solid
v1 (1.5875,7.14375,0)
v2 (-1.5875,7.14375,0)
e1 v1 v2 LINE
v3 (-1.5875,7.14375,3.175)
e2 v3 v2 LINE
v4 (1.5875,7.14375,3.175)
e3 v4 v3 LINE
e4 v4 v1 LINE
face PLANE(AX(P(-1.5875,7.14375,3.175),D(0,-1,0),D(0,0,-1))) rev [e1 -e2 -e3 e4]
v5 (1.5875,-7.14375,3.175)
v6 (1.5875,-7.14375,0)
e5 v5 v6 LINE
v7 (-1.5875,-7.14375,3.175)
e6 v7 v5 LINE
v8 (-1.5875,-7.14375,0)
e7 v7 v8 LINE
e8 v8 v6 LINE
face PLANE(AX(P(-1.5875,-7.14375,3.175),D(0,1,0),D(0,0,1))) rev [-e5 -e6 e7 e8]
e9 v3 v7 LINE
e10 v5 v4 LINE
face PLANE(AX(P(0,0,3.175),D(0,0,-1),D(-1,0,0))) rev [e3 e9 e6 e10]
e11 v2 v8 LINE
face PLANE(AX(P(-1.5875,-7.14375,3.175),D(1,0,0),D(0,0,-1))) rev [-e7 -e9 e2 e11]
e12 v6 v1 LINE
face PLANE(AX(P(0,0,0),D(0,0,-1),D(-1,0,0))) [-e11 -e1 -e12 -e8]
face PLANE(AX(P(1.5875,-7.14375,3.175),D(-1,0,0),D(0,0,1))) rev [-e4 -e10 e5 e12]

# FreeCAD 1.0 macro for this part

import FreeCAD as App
import Part
import Sketcher
from FreeCAD import Vector
Q = App.Units.Quantity

doc = App.newDocument("Part")
params = doc.addObject("Spreadsheet::Sheet", "Params")
for row, (alias, value) in enumerate([
    ("sketch1_width", "0.125 in"),
    ("sketch1_height", "0.5625 in"),
    ("pad1_length", "0.125 in"),
], start=1):
    params.set(f"A{row}", alias)
    params.set(f"B{row}", "=" + value)
    params.setAlias(f"B{row}", alias)

body = doc.addObject("PartDesign::Body", "Body")

# Sketch on XY plane
sketch1 = body.newObject("Sketcher::SketchObject", "Sketch")
sketch1.AttachmentSupport = (doc.getObject("XY_Plane"), [""])
sketch1.MapMode = "FlatFace"
sketch1.addGeometry([
    Part.LineSegment(Vector(-1.5875, 7.14375, 0), Vector(-1.5875, -7.14375, 0)),
    Part.LineSegment(Vector(-1.5875, -7.14375, 0), Vector(1.5875, -7.14375, 0)),
    Part.LineSegment(Vector(1.5875, -7.14375, 0), Vector(1.5875, 7.14375, 0)),
    Part.LineSegment(Vector(1.5875, 7.14375, 0), Vector(-1.5875, 7.14375, 0)),
], False)
sketch1.addConstraint([
    Sketcher.Constraint("Coincident", 0, 2, 1, 1),
    Sketcher.Constraint("Coincident", 1, 2, 2, 1),
    Sketcher.Constraint("Coincident", 2, 2, 3, 1),
    Sketcher.Constraint("Coincident", 3, 2, 0, 1),
    Sketcher.Constraint("Vertical", 0),
    Sketcher.Constraint("Horizontal", 1),
    Sketcher.Constraint("Vertical", 2),
    Sketcher.Constraint("Horizontal", 3),
    Sketcher.Constraint("Symmetric", 0, 2, 2, 2, -1, 1),
    Sketcher.Constraint("DistanceX", 1, 1, 1, 2, Q("0.125 in")),
    Sketcher.Constraint("DistanceY", 0, 2, 0, 1, Q("0.5625 in")),
])
sketch1.setExpression("Constraints[9]", "Params.sketch1_width")
sketch1.setExpression("Constraints[10]", "Params.sketch1_height")
pad1 = body.newObject("PartDesign::Pad", "Pad")
pad1.Profile = sketch1
pad1.setExpression("Length", "Params.pad1_length")

doc.recompute()
